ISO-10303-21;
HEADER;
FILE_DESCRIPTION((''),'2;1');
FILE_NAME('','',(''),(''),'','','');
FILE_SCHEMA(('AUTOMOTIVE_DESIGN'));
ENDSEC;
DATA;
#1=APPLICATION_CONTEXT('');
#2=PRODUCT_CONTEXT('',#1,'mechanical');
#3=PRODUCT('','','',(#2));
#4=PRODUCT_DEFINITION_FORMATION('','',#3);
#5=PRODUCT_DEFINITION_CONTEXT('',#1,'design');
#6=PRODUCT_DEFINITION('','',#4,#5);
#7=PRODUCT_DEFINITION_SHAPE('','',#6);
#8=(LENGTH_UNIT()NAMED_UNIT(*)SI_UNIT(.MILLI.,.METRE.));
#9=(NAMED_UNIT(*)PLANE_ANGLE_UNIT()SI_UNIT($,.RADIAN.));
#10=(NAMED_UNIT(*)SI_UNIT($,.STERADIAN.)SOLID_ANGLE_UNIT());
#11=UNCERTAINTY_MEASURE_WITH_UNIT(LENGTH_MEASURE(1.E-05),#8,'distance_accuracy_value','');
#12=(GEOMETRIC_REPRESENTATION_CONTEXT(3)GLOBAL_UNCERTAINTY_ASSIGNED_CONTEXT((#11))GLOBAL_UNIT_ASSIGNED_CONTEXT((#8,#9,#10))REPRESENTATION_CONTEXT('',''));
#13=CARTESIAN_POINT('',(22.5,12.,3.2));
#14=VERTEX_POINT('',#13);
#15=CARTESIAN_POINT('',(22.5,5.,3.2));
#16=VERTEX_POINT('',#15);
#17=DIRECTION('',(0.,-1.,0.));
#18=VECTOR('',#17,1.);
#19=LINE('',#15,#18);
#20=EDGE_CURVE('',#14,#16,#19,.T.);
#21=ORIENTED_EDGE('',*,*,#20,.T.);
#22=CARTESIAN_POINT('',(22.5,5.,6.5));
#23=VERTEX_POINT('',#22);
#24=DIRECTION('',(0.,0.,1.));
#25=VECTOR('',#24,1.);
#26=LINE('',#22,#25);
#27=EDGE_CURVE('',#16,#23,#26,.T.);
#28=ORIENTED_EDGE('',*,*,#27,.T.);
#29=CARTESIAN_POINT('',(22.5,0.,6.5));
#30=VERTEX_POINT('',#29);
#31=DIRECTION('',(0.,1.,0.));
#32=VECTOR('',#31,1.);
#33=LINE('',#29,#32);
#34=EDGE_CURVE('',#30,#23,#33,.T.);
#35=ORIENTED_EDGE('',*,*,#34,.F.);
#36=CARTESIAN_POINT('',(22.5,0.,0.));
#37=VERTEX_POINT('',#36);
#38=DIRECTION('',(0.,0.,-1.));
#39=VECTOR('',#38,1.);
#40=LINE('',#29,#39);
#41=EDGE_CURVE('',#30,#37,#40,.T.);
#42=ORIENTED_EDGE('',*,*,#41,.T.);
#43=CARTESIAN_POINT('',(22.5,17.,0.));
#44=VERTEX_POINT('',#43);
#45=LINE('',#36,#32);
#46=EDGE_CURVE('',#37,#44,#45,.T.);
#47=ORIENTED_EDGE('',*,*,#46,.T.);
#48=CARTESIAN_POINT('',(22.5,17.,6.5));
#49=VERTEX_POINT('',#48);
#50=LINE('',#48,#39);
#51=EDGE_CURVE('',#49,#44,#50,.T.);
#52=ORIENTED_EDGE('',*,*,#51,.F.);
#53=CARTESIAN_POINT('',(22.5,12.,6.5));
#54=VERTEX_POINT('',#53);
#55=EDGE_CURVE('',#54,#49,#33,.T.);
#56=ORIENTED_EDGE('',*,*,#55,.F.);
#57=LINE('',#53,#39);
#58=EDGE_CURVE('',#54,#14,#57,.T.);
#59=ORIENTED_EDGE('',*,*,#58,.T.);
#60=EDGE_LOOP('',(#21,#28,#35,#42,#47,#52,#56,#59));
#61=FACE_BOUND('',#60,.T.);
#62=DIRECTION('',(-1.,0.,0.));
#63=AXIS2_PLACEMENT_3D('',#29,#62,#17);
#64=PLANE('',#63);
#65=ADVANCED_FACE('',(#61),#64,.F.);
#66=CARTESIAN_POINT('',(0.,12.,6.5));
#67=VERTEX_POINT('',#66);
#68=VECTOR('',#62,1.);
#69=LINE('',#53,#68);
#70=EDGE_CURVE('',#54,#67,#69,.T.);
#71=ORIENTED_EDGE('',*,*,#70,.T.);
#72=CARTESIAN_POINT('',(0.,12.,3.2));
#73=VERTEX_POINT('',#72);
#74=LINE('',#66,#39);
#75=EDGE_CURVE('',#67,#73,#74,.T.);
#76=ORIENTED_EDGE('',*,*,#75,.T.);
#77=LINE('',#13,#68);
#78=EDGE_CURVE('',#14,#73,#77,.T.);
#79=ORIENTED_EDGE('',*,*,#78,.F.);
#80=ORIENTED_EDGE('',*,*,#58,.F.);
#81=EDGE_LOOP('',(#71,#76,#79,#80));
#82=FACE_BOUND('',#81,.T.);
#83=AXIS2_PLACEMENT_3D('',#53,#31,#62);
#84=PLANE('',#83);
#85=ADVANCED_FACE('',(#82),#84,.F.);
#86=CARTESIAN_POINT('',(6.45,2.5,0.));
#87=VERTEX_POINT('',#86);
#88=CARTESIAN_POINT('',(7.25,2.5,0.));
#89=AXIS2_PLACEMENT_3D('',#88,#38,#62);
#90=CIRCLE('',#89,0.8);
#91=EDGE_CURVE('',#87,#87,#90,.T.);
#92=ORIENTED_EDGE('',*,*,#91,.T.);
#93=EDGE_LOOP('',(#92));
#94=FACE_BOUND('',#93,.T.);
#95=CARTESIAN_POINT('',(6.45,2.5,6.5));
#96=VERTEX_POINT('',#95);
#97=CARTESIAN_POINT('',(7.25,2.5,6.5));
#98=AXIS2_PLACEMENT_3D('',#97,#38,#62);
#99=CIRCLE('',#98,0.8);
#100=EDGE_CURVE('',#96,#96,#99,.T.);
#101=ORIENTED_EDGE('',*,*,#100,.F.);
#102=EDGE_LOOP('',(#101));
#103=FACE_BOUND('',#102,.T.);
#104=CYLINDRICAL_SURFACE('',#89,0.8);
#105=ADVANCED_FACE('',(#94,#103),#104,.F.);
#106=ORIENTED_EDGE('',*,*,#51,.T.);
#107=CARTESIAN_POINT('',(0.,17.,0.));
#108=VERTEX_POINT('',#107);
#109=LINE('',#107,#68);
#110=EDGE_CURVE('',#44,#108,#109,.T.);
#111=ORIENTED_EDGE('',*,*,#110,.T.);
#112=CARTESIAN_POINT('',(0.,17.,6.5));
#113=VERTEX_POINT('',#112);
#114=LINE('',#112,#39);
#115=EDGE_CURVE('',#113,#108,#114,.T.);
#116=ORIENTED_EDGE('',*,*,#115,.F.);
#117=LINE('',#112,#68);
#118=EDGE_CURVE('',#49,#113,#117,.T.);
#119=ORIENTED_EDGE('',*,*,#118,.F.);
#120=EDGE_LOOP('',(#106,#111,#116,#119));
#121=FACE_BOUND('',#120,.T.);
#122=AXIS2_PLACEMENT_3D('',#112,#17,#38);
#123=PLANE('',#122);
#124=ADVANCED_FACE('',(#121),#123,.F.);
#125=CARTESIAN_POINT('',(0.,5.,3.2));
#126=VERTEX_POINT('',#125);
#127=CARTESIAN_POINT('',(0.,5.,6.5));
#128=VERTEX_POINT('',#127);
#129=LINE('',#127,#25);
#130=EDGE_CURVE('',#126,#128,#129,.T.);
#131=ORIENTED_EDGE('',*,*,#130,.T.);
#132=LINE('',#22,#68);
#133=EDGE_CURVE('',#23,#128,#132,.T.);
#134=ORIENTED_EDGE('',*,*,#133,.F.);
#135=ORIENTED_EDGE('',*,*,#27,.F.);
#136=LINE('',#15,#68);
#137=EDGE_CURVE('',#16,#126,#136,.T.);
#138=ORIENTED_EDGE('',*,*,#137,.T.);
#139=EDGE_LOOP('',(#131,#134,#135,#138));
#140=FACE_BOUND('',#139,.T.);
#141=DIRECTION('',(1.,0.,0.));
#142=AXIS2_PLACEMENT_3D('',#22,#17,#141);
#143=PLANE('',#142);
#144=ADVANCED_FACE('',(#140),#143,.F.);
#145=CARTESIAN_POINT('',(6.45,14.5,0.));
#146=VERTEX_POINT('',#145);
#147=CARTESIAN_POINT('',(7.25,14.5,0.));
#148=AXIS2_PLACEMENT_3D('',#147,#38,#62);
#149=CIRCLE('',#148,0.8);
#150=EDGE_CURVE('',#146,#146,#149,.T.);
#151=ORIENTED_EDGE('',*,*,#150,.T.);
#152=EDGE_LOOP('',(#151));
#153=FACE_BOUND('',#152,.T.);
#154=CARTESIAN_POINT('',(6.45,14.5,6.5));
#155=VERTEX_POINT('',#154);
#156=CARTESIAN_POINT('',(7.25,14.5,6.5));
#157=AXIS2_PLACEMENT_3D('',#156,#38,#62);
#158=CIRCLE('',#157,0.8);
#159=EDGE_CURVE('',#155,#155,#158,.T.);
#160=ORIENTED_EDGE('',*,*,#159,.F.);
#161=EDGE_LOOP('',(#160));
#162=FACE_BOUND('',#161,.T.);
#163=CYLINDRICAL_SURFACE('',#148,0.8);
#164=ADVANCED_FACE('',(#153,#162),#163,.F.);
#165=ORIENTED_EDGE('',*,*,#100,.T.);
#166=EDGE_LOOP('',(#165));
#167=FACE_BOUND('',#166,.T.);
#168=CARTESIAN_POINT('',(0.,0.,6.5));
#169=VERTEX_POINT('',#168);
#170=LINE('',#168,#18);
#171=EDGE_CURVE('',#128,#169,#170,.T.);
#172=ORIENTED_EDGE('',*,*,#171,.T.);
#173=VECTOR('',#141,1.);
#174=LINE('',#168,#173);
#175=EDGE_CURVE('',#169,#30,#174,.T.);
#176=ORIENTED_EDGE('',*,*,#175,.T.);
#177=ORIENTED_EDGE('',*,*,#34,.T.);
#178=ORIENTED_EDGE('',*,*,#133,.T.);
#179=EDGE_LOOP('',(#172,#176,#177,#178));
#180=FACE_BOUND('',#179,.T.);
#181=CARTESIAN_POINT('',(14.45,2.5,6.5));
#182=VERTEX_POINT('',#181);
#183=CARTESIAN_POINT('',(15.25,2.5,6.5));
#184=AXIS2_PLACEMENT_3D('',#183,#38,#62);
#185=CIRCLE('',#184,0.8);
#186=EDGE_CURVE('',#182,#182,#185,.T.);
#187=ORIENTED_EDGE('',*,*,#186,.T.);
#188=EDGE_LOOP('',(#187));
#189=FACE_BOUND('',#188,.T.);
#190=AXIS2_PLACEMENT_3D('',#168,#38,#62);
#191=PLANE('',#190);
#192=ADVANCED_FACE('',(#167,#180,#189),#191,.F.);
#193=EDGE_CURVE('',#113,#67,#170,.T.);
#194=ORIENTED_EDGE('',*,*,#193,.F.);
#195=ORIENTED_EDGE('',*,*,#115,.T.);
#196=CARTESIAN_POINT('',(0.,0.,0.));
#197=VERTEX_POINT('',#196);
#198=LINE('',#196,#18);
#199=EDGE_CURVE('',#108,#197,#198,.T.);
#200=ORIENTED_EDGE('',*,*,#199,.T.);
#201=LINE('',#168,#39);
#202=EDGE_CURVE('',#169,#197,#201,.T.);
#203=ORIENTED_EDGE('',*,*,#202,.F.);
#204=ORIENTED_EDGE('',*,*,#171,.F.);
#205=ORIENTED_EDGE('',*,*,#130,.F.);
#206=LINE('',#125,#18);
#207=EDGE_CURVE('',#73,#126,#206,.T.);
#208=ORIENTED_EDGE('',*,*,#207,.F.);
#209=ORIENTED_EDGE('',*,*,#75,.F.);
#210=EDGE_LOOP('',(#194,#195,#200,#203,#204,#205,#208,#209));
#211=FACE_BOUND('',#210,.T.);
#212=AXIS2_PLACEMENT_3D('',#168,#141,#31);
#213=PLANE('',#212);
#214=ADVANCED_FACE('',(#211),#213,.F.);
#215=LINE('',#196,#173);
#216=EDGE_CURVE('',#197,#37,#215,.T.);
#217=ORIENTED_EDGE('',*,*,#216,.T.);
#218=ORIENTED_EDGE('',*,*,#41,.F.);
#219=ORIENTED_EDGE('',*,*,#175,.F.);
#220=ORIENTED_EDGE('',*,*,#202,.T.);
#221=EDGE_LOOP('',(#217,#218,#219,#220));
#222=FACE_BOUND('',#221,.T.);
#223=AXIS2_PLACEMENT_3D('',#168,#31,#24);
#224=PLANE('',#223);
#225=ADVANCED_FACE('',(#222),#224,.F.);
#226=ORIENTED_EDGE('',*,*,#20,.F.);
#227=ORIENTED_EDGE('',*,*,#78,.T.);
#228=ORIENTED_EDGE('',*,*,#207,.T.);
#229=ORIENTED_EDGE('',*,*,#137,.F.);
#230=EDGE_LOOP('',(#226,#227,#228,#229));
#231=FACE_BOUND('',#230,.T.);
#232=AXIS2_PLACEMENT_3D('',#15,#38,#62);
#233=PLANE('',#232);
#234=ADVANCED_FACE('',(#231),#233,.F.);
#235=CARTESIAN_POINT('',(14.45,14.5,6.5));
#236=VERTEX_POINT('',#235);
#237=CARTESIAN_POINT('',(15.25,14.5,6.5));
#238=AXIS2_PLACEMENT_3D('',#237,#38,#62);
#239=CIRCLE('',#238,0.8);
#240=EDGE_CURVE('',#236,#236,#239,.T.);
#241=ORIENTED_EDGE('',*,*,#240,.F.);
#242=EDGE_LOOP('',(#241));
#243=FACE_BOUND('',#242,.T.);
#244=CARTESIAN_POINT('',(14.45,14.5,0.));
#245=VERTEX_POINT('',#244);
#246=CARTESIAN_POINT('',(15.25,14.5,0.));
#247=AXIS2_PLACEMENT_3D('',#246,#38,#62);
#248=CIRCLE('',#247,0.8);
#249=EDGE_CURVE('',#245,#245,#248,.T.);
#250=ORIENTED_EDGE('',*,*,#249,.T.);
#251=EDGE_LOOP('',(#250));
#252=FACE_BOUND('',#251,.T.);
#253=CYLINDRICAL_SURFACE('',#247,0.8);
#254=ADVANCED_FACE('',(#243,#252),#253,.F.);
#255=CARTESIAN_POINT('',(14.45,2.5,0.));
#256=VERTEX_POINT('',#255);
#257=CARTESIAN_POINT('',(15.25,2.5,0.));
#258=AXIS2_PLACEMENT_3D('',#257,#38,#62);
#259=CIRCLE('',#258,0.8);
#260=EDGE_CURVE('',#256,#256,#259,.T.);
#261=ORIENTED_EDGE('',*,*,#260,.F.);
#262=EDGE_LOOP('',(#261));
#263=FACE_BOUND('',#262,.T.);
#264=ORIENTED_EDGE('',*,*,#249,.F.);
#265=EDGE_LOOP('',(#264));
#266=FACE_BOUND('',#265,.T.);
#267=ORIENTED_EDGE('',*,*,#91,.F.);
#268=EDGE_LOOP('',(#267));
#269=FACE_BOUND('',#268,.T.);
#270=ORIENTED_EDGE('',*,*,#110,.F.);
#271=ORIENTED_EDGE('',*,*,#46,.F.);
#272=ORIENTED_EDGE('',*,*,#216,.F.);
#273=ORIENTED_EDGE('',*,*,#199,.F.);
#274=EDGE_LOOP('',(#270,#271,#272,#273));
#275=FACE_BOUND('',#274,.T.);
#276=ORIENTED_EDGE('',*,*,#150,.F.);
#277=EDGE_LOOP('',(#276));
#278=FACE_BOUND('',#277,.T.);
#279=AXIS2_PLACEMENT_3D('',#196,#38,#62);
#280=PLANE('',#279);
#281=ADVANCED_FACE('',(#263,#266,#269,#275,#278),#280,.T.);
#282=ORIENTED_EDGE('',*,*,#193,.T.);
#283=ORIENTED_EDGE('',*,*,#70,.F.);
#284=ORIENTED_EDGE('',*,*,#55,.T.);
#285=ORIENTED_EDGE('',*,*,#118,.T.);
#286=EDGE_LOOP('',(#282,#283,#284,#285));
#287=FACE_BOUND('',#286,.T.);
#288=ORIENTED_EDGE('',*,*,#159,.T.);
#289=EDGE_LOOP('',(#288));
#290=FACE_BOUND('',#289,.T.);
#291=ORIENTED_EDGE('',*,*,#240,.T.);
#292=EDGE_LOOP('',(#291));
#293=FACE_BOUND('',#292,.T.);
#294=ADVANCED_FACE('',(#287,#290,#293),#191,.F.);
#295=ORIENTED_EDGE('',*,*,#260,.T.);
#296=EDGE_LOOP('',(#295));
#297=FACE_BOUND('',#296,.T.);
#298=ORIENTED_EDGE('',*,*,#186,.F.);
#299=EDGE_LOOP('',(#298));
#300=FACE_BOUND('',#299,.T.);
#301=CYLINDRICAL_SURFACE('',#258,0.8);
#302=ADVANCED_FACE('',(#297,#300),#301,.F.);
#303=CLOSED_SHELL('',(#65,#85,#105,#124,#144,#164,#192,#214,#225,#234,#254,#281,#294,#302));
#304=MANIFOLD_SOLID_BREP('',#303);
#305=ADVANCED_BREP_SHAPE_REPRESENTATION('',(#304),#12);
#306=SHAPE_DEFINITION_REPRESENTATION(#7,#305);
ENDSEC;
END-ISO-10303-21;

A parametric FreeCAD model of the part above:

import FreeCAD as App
import Part
import Sketcher
Q = App.Units.Quantity


def add_polygon(sketch, points):
    """Adds a closed chain of lines whose ends are joined by coincident constraints."""
    first, n = sketch.GeometryCount, len(points)
    for a, b in zip(points, points[1:] + points[:1]):
        sketch.addGeometry(Part.LineSegment(App.Vector(*a, 0), App.Vector(*b, 0)), False)
    for i in range(n):
        sketch.addConstraint(Sketcher.Constraint("Coincident", first + i, 2, first + (i + 1) % n, 1))

doc = App.newDocument("Part")
body = doc.addObject("PartDesign::Body", "Body")

# Sketch on XY plane
sketch1 = body.newObject("Sketcher::SketchObject", "Sketch")
sketch1.AttachmentSupport = (doc.getObject("XY_Plane"), [""])
sketch1.MapMode = "FlatFace"
add_polygon(sketch1, [(0, 17), (0, 0), (22, 0), (22, 17)])  # lines 0-3
sketch1.addConstraint(Sketcher.Constraint("Vertical", 0))
sketch1.addConstraint(Sketcher.Constraint("Horizontal", 1))
sketch1.addConstraint(Sketcher.Constraint("Vertical", 2))
sketch1.addConstraint(Sketcher.Constraint("Horizontal", 3))
sketch1.addConstraint(Sketcher.Constraint("Coincident", 0, 2, -1, 1))
sketch1.addConstraint(Sketcher.Constraint("DistanceY", 0, 2, 0, 1, Q("17 mm")))
sketch1.addConstraint(Sketcher.Constraint("DistanceX", 1, 1, 1, 2, Q("22.5 mm")))
pad1 = body.newObject("PartDesign::Pad", "Pad")
pad1.Profile = sketch1
pad1.Length = 6.5

# Sketch on YZ plane
sketch2 = body.newObject("Sketcher::SketchObject", "Sketch001")
sketch2.AttachmentSupport = (doc.getObject("YZ_Plane"), [""])
sketch2.MapMode = "FlatFace"
add_polygon(sketch2, [(12, 3.2), (5, 3.2), (5, 6.5), (12, 6.5)])  # lines 0-3
sketch2.addConstraint(Sketcher.Constraint("Horizontal", 0))
sketch2.addConstraint(Sketcher.Constraint("Vertical", 1))
sketch2.addConstraint(Sketcher.Constraint("Horizontal", 2))
sketch2.addConstraint(Sketcher.Constraint("Vertical", 3))
sketch2.addConstraint(Sketcher.Constraint("DistanceX", 0, 2, 0, 1, Q("7 mm")))
sketch2.addConstraint(Sketcher.Constraint("DistanceY", 1, 1, 1, 2, Q("3.3 mm")))
sketch2.addConstraint(Sketcher.Constraint("DistanceX", -1, 1, 0, 2, Q("5 mm")))
sketch2.addConstraint(Sketcher.Constraint("DistanceY", -1, 1, 0, 2, Q("3.2 mm")))
pocket1 = body.newObject("PartDesign::Pocket", "Pocket")
pocket1.Profile = sketch2
pocket1.Type = "ThroughAll"
pocket1.Reversed = True

# Sketch on XY plane
sketch3 = body.newObject("Sketcher::SketchObject", "Sketch002")
sketch3.AttachmentSupport = (doc.getObject("XY_Plane"), [""])
sketch3.MapMode = "FlatFace"
sketch3.addGeometry(Part.Circle(App.Vector(15.2, 2.5, 0), App.Vector(0, 0, 1), 0.8), False)
sketch3.addGeometry(Part.Circle(App.Vector(7.2, 2.5, 0), App.Vector(0, 0, 1), 0.8), False)
sketch3.addGeometry(Part.Circle(App.Vector(15.2, 14.5, 0), App.Vector(0, 0, 1), 0.8), False)
sketch3.addGeometry(Part.Circle(App.Vector(7.2, 14.5, 0), App.Vector(0, 0, 1), 0.8), False)
sketch3.addConstraint(Sketcher.Constraint("Equal", 0, 1))
sketch3.addConstraint(Sketcher.Constraint("Equal", 1, 2))
sketch3.addConstraint(Sketcher.Constraint("Equal", 2, 3))
sketch3.addConstraint(Sketcher.Constraint("Horizontal", 0, 3, 1, 3))
sketch3.addConstraint(Sketcher.Constraint("Horizontal", 2, 3, 3, 3))
sketch3.addConstraint(Sketcher.Constraint("Vertical", 0, 3, 2, 3))
sketch3.addConstraint(Sketcher.Constraint("Vertical", 1, 3, 3, 3))
sketch3.addConstraint(Sketcher.Constraint("Diameter", 0, Q("1.6 mm")))
sketch3.addConstraint(Sketcher.Constraint("DistanceX", 1, 3, 0, 3, Q("8 mm")))
sketch3.addConstraint(Sketcher.Constraint("DistanceY", 0, 3, 2, 3, Q("12 mm")))
sketch3.addConstraint(Sketcher.Constraint("DistanceY", -1, 1, 0, 3, Q("2.5 mm")))
sketch3.addConstraint(Sketcher.Constraint("DistanceX", -1, 1, 0, 3, Q("15.25 mm")))
doc.recompute()
hole = body.newObject("PartDesign::Hole", "Hole")
hole.Profile = sketch3
hole.ThreadType = "None"
hole.Diameter = 1.6
hole.DepthType = "Dimension"
hole.Depth = 10.1
hole.DrillPoint = "Angled"
hole.DrillPointAngle = 118
hole.Reversed = True

doc.recompute()
